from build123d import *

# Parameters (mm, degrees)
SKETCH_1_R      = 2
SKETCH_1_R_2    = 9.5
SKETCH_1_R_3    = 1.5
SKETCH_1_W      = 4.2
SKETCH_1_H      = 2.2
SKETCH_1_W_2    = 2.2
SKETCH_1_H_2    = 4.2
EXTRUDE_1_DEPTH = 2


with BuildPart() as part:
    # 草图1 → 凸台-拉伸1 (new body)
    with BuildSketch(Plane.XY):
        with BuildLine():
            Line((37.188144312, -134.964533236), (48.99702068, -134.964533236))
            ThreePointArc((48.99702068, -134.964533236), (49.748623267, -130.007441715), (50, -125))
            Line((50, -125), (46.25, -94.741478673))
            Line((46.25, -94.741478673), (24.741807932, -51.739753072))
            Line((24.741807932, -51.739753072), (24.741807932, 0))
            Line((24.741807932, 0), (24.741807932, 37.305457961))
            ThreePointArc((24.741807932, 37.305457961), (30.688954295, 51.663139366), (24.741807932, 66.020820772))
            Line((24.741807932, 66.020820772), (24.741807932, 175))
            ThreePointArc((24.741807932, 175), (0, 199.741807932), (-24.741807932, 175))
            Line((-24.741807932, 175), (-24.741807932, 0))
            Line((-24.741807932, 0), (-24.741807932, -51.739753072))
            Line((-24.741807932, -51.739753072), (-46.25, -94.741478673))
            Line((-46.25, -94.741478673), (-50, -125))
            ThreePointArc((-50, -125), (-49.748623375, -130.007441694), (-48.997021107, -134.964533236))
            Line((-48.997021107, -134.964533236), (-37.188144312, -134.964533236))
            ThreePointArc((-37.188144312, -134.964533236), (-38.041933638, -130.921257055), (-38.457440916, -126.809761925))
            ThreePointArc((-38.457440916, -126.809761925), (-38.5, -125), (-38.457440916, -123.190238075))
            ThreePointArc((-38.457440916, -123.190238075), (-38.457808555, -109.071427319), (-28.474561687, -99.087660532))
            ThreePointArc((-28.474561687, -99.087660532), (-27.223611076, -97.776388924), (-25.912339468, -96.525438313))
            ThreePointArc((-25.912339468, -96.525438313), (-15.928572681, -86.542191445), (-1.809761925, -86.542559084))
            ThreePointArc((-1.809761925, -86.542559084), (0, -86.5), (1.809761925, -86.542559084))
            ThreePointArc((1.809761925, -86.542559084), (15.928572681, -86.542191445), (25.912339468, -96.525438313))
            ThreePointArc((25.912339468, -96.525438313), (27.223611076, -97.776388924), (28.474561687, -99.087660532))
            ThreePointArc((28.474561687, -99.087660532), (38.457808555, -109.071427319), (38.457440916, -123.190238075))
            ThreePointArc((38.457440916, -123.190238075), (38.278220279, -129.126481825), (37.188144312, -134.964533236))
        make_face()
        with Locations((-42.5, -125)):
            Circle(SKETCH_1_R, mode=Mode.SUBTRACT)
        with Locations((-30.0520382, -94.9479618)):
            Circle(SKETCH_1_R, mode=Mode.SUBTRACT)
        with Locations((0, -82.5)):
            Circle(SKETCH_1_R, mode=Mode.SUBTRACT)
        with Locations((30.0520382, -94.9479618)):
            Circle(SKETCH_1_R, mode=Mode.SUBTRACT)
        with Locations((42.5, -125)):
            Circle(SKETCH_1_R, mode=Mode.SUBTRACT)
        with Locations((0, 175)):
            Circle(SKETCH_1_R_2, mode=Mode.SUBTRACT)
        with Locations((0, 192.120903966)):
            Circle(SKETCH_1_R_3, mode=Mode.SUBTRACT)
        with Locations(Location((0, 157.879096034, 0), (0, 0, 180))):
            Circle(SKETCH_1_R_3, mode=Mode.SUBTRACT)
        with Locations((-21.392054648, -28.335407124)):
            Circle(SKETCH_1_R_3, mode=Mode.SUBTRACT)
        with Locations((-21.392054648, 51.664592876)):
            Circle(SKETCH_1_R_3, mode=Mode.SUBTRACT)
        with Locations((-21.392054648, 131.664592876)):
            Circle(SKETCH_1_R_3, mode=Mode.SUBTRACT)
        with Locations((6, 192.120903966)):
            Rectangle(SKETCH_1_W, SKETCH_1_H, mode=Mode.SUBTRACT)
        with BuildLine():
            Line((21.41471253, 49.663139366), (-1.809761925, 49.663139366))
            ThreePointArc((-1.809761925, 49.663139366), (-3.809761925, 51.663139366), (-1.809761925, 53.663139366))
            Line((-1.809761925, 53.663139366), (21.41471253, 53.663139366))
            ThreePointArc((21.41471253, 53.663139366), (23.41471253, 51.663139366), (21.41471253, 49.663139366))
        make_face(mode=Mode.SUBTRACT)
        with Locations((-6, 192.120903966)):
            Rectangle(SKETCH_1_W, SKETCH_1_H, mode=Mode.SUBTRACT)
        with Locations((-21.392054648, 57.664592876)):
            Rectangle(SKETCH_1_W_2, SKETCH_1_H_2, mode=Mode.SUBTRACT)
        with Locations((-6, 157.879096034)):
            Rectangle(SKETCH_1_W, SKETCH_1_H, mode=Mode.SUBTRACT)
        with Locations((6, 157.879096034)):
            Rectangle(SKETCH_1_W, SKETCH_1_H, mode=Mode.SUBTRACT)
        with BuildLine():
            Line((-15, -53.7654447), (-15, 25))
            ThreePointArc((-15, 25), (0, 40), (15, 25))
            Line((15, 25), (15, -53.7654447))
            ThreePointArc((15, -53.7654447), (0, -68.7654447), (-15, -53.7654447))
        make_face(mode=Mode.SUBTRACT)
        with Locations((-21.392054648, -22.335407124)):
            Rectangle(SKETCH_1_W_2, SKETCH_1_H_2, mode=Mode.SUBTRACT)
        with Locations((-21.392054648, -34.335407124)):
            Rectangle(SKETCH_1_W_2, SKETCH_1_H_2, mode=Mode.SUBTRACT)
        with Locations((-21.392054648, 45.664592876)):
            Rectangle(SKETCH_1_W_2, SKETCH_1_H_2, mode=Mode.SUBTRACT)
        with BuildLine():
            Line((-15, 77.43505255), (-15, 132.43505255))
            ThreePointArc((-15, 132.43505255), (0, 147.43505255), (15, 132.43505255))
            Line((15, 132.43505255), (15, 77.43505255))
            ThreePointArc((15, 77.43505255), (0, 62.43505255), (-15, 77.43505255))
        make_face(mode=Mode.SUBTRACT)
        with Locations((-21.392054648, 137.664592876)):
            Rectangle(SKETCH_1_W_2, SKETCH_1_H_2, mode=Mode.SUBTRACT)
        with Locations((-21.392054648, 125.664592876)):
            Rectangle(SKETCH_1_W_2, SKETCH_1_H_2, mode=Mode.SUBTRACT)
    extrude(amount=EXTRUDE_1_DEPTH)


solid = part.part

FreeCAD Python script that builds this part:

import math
import FreeCAD as App
import Part
import Sketcher
from FreeCAD import Vector
Q = App.Units.Quantity


def add_polygon(sketch, points):
    """Adds a closed chain of lines whose ends are joined by coincident constraints."""
    first, n = sketch.GeometryCount, len(points)
    for a, b in zip(points, points[1:] + points[:1]):
        sketch.addGeometry(Part.LineSegment(App.Vector(*a, 0), App.Vector(*b, 0)), False)
    for i in range(n):
        sketch.addConstraint(Sketcher.Constraint("Coincident", first + i, 2, first + (i + 1) % n, 1))

doc = App.newDocument("Part")
body = doc.addObject("PartDesign::Body", "Body")

sketch1 = body.newObject("Sketcher::SketchObject", "Sketch")
sketch1.AttachmentSupport = (doc.getObject("XY_Plane"), [""])
sketch1.MapMode = "FlatFace"
sketch1.addGeometry(Part.LineSegment(Vector(37.188144, -134.964533, 0), Vector(48.997021, -134.964533, 0)), False)
sketch1.addGeometry(Part.ArcOfCircle(Part.Circle(Vector(0.000021, -125, 0), Vector(0, 0, 1), 49.999979), math.radians(-11.495487), math.radians(0)), False)
sketch1.addGeometry(Part.LineSegment(Vector(50, -125, 0), Vector(46.25, -94.741479, 0)), False)
sketch1.addGeometry(Part.LineSegment(Vector(46.25, -94.741479, 0), Vector(24.741808, -51.739753, 0)), False)
sketch1.addGeometry(Part.LineSegment(Vector(24.741808, -51.739753, 0), Vector(24.741808, 37.305458, 0)), False)
sketch1.addGeometry(Part.ArcOfCircle(Part.Circle(Vector(10.384127, 51.663139, 0), Vector(0, 0, 1), 20.304828), math.radians(-45), math.radians(45)), False)
sketch1.addGeometry(Part.LineSegment(Vector(24.741808, 66.020821, 0), Vector(24.741808, 175, 0)), False)
sketch1.addGeometry(Part.ArcOfCircle(Part.Circle(Vector(0, 175, 0), Vector(0, 0, 1), 24.741808), math.radians(0), math.radians(180)), False)
sketch1.addGeometry(Part.LineSegment(Vector(-24.741808, 175, 0), Vector(-24.741808, -51.739753, 0)), False)
sketch1.addGeometry(Part.LineSegment(Vector(-24.741808, -51.739753, 0), Vector(-46.25, -94.741479, 0)), False)
sketch1.addGeometry(Part.LineSegment(Vector(-46.25, -94.741479, 0), Vector(-50, -125, 0)), False)
sketch1.addGeometry(Part.ArcOfCircle(Part.Circle(Vector(0, -125, 0), Vector(0, 0, 1), 50), math.radians(180), math.radians(191.495482)), False)
sketch1.addGeometry(Part.LineSegment(Vector(-48.997021, -134.964533, 0), Vector(-37.188144, -134.964533, 0)), False)
sketch1.addGeometry(Part.ArcOfCircle(Part.Circle(Vector(0, -125, 0), Vector(0, 0, 1), 38.5), math.radians(-177.305716), math.radians(-165)), False)
sketch1.addGeometry(Part.ArcOfCircle(Part.Circle(Vector(0, -125, 0), Vector(0, 0, 1), 38.5), math.radians(177.305716), math.radians(182.694284)), False)
sketch1.addGeometry(Part.ArcOfCircle(Part.Circle(Vector(-21.414713, -116.130389, 0), Vector(0, 0, 1), 18.447115), math.radians(112.501492), math.radians(202.501492)), False)
sketch1.addGeometry(Part.ArcOfCircle(Part.Circle(Vector(-0.000001, -124.999999, 0), Vector(0, 0, 1), 38.499999), math.radians(132.302732), math.radians(137.697268)), False)
sketch1.addGeometry(Part.ArcOfCircle(Part.Circle(Vector(-8.869611, -103.585287, 0), Vector(0, 0, 1), 18.447115), math.radians(67.498508), math.radians(157.498508)), False)
sketch1.addGeometry(Part.ArcOfCircle(Part.Circle(Vector(0, -125, 0), Vector(0, 0, 1), 38.5), math.radians(87.305716), math.radians(92.694284)), False)
sketch1.addGeometry(Part.ArcOfCircle(Part.Circle(Vector(8.869611, -103.585287, 0), Vector(0, 0, 1), 18.447115), math.radians(22.501492), math.radians(112.501492)), False)
sketch1.addGeometry(Part.ArcOfCircle(Part.Circle(Vector(0.000001, -124.999999, 0), Vector(0, 0, 1), 38.499999), math.radians(42.302732), math.radians(47.697268)), False)
sketch1.addGeometry(Part.ArcOfCircle(Part.Circle(Vector(21.414713, -116.130389, 0), Vector(0, 0, 1), 18.447115), math.radians(-22.501492), math.radians(67.498508)), False)
sketch1.addGeometry(Part.ArcOfCircle(Part.Circle(Vector(0, -125, 0), Vector(0, 0, 1), 38.5), math.radians(-15), math.radians(2.694284)), False)
sketch1.addGeometry(Part.Circle(Vector(-42.5, -125, 0), Vector(0, 0, 1), 2), False)
sketch1.addGeometry(Part.Circle(Vector(-30.052038, -94.947962, 0), Vector(0, 0, 1), 2), False)
add_polygon(sketch1, [(-20.292055, -36.435407), (-22.492055, -36.435407), (-22.492055, -32.235407), (-20.292055, -32.235407)])
sketch1.addGeometry(Part.Circle(Vector(-21.392055, -28.335407, 0), Vector(0, 0, 1), 1.5), False)
add_polygon(sketch1, [(-20.292055, -24.435407), (-22.492055, -24.435407), (-22.492055, -20.235407), (-20.292055, -20.235407)])
sketch1.addGeometry(Part.Circle(Vector(0, -82.5, 0), Vector(0, 0, 1), 2), False)
sketch1.addGeometry(Part.Circle(Vector(30.052038, -94.947962, 0), Vector(0, 0, 1), 2), False)
sketch1.addGeometry(Part.Circle(Vector(42.5, -125, 0), Vector(0, 0, 1), 2), False)
sketch1.addGeometry(Part.ArcOfCircle(Part.Circle(Vector(0, -53.765445, 0), Vector(0, 0, 1), 15), math.radians(180), math.radians(360)), False)
sketch1.addGeometry(Part.LineSegment(Vector(-15, -53.765445, 0), Vector(-15, 25, 0)), False)
sketch1.addGeometry(Part.ArcOfCircle(Part.Circle(Vector(0, 25, 0), Vector(0, 0, 1), 15), math.radians(0), math.radians(180)), False)
sketch1.addGeometry(Part.LineSegment(Vector(15, 25, 0), Vector(15, -53.765445, 0)), False)
add_polygon(sketch1, [(-20.292055, 43.564593), (-22.492055, 43.564593), (-22.492055, 47.764593), (-20.292055, 47.764593)])
sketch1.addGeometry(Part.Circle(Vector(-21.392055, 51.664593, 0), Vector(0, 0, 1), 1.5), False)
add_polygon(sketch1, [(-20.292055, 55.564593), (-22.492055, 55.564593), (-22.492055, 59.764593), (-20.292055, 59.764593)])
add_polygon(sketch1, [(-20.292055, 123.564593), (-22.492055, 123.564593), (-22.492055, 127.764593), (-20.292055, 127.764593)])
sketch1.addGeometry(Part.Circle(Vector(-21.392055, 131.664593, 0), Vector(0, 0, 1), 1.5), False)
add_polygon(sketch1, [(-20.292055, 135.564593), (-22.492055, 135.564593), (-22.492055, 139.764593), (-20.292055, 139.764593)])
add_polygon(sketch1, [(-3.9, 156.779096), (-8.1, 156.779096), (-8.1, 158.979096), (-3.9, 158.979096)])
add_polygon(sketch1, [(-3.9, 191.020904), (-8.1, 191.020904), (-8.1, 193.220904), (-3.9, 193.220904)])
sketch1.addGeometry(Part.ArcOfCircle(Part.Circle(Vector(21.414713, 51.663139, 0), Vector(0, 0, 1), 2), math.radians(-90), math.radians(90)), False)
sketch1.addGeometry(Part.LineSegment(Vector(21.414713, 49.663139, 0), Vector(-1.809762, 49.663139, 0)), False)
sketch1.addGeometry(Part.ArcOfCircle(Part.Circle(Vector(-1.809762, 51.663139, 0), Vector(0, 0, 1), 2), math.radians(90), math.radians(270)), False)
sketch1.addGeometry(Part.LineSegment(Vector(-1.809762, 53.663139, 0), Vector(21.414713, 53.663139, 0)), False)
sketch1.addGeometry(Part.ArcOfCircle(Part.Circle(Vector(0, 77.435053, 0), Vector(0, 0, 1), 15), math.radians(180), math.radians(360)), False)
sketch1.addGeometry(Part.LineSegment(Vector(-15, 77.435053, 0), Vector(-15, 132.435053, 0)), False)
sketch1.addGeometry(Part.ArcOfCircle(Part.Circle(Vector(0, 132.435053, 0), Vector(0, 0, 1), 15), math.radians(0), math.radians(180)), False)
sketch1.addGeometry(Part.LineSegment(Vector(15, 132.435053, 0), Vector(15, 77.435053, 0)), False)
sketch1.addGeometry(Part.Circle(Vector(0, 157.879096, 0), Vector(0, 0, 1), 1.5), False)
add_polygon(sketch1, [(8.1, 156.779096), (3.9, 156.779096), (3.9, 158.979096), (8.1, 158.979096)])
sketch1.addGeometry(Part.Circle(Vector(0, 175, 0), Vector(0, 0, 1), 9.5), False)
sketch1.addGeometry(Part.Circle(Vector(0, 192.120904, 0), Vector(0, 0, 1), 1.5), False)
add_polygon(sketch1, [(8.1, 191.020904), (3.9, 191.020904), (3.9, 193.220904), (8.1, 193.220904)])
sketch1.addConstraint(Sketcher.Constraint("Coincident", 0, 2, 1, 1))
sketch1.addConstraint(Sketcher.Constraint("Coincident", 1, 2, 2, 1))
sketch1.addConstraint(Sketcher.Constraint("Coincident", 2, 2, 3, 1))
sketch1.addConstraint(Sketcher.Constraint("Coincident", 3, 2, 4, 1))
sketch1.addConstraint(Sketcher.Constraint("Coincident", 4, 2, 5, 1))
sketch1.addConstraint(Sketcher.Constraint("Coincident", 5, 2, 6, 1))
sketch1.addConstraint(Sketcher.Constraint("Coincident", 6, 2, 7, 1))
sketch1.addConstraint(Sketcher.Constraint("Coincident", 7, 2, 8, 1))
sketch1.addConstraint(Sketcher.Constraint("Coincident", 8, 2, 9, 1))
sketch1.addConstraint(Sketcher.Constraint("Coincident", 9, 2, 10, 1))
sketch1.addConstraint(Sketcher.Constraint("Coincident", 10, 2, 11, 1))
sketch1.addConstraint(Sketcher.Constraint("Coincident", 11, 2, 12, 1))
sketch1.addConstraint(Sketcher.Constraint("Coincident", 12, 2, 13, 2))
sketch1.addConstraint(Sketcher.Constraint("Coincident", 13, 1, 14, 2))
sketch1.addConstraint(Sketcher.Constraint("Coincident", 14, 1, 15, 2))
sketch1.addConstraint(Sketcher.Constraint("Coincident", 15, 1, 16, 2))
sketch1.addConstraint(Sketcher.Constraint("Coincident", 16, 1, 17, 2))
sketch1.addConstraint(Sketcher.Constraint("Coincident", 17, 1, 18, 2))
sketch1.addConstraint(Sketcher.Constraint("Coincident", 18, 1, 19, 2))
sketch1.addConstraint(Sketcher.Constraint("Coincident", 19, 1, 20, 2))
sketch1.addConstraint(Sketcher.Constraint("Coincident", 20, 1, 21, 2))
sketch1.addConstraint(Sketcher.Constraint("Coincident", 21, 1, 22, 2))
sketch1.addConstraint(Sketcher.Constraint("Coincident", 22, 1, 0, 1))
sketch1.addConstraint(Sketcher.Constraint("Coincident", 37, 1, 38, 1))
sketch1.addConstraint(Sketcher.Constraint("Coincident", 38, 2, 39, 2))
sketch1.addConstraint(Sketcher.Constraint("Coincident", 39, 1, 40, 1))
sketch1.addConstraint(Sketcher.Constraint("Coincident", 40, 2, 37, 2))
sketch1.addConstraint(Sketcher.Constraint("Coincident", 67, 1, 68, 1))
sketch1.addConstraint(Sketcher.Constraint("Coincident", 68, 2, 69, 2))
sketch1.addConstraint(Sketcher.Constraint("Coincident", 69, 1, 70, 1))
sketch1.addConstraint(Sketcher.Constraint("Coincident", 70, 2, 67, 2))
sketch1.addConstraint(Sketcher.Constraint("Coincident", 71, 1, 72, 1))
sketch1.addConstraint(Sketcher.Constraint("Coincident", 72, 2, 73, 2))
sketch1.addConstraint(Sketcher.Constraint("Coincident", 73, 1, 74, 1))
sketch1.addConstraint(Sketcher.Constraint("Coincident", 74, 2, 71, 2))
sketch1.addConstraint(Sketcher.Constraint("Horizontal", 0))
sketch1.addConstraint(Sketcher.Constraint("Vertical", 4))
sketch1.addConstraint(Sketcher.Constraint("Vertical", 6))
sketch1.addConstraint(Sketcher.Constraint("Vertical", 8))
sketch1.addConstraint(Sketcher.Constraint("Horizontal", 12))
sketch1.addConstraint(Sketcher.Constraint("Horizontal", 25))
sketch1.addConstraint(Sketcher.Constraint("Vertical", 26))
sketch1.addConstraint(Sketcher.Constraint("Horizontal", 27))
sketch1.addConstraint(Sketcher.Constraint("Vertical", 28))
sketch1.addConstraint(Sketcher.Constraint("Horizontal", 30))
sketch1.addConstraint(Sketcher.Constraint("Vertical", 31))
sketch1.addConstraint(Sketcher.Constraint("Horizontal", 32))
sketch1.addConstraint(Sketcher.Constraint("Vertical", 33))
sketch1.addConstraint(Sketcher.Constraint("Vertical", 38))
sketch1.addConstraint(Sketcher.Constraint("Vertical", 40))
sketch1.addConstraint(Sketcher.Constraint("Horizontal", 41))
sketch1.addConstraint(Sketcher.Constraint("Vertical", 42))
sketch1.addConstraint(Sketcher.Constraint("Horizontal", 43))
sketch1.addConstraint(Sketcher.Constraint("Vertical", 44))
sketch1.addConstraint(Sketcher.Constraint("Horizontal", 46))
sketch1.addConstraint(Sketcher.Constraint("Vertical", 47))
sketch1.addConstraint(Sketcher.Constraint("Horizontal", 48))
sketch1.addConstraint(Sketcher.Constraint("Vertical", 49))
sketch1.addConstraint(Sketcher.Constraint("Horizontal", 50))
sketch1.addConstraint(Sketcher.Constraint("Vertical", 51))
sketch1.addConstraint(Sketcher.Constraint("Horizontal", 52))
sketch1.addConstraint(Sketcher.Constraint("Vertical", 53))
sketch1.addConstraint(Sketcher.Constraint("Horizontal", 55))
sketch1.addConstraint(Sketcher.Constraint("Vertical", 56))
sketch1.addConstraint(Sketcher.Constraint("Horizontal", 57))
sketch1.addConstraint(Sketcher.Constraint("Vertical", 58))
sketch1.addConstraint(Sketcher.Constraint("Horizontal", 59))
sketch1.addConstraint(Sketcher.Constraint("Vertical", 60))
sketch1.addConstraint(Sketcher.Constraint("Horizontal", 61))
sketch1.addConstraint(Sketcher.Constraint("Vertical", 62))
sketch1.addConstraint(Sketcher.Constraint("Horizontal", 63))
sketch1.addConstraint(Sketcher.Constraint("Vertical", 64))
sketch1.addConstraint(Sketcher.Constraint("Horizontal", 65))
sketch1.addConstraint(Sketcher.Constraint("Vertical", 66))
sketch1.addConstraint(Sketcher.Constraint("Horizontal", 68))
sketch1.addConstraint(Sketcher.Constraint("Horizontal", 70))
sketch1.addConstraint(Sketcher.Constraint("Vertical", 72))
sketch1.addConstraint(Sketcher.Constraint("Vertical", 74))
sketch1.addConstraint(Sketcher.Constraint("Horizontal", 76))
sketch1.addConstraint(Sketcher.Constraint("Vertical", 77))
sketch1.addConstraint(Sketcher.Constraint("Horizontal", 78))
sketch1.addConstraint(Sketcher.Constraint("Vertical", 79))
sketch1.addConstraint(Sketcher.Constraint("Horizontal", 82))
sketch1.addConstraint(Sketcher.Constraint("Vertical", 83))
sketch1.addConstraint(Sketcher.Constraint("Horizontal", 84))
sketch1.addConstraint(Sketcher.Constraint("Vertical", 85))
sketch1.addConstraint(Sketcher.Constraint("Coincident", 13, 3, 11, 3))
sketch1.addConstraint(Sketcher.Constraint("Coincident", 14, 3, 11, 3))
sketch1.addConstraint(Sketcher.Constraint("Coincident", 16, 3, 11, 3))
sketch1.addConstraint(Sketcher.Constraint("Coincident", 18, 3, 11, 3))
sketch1.addConstraint(Sketcher.Constraint("Coincident", 20, 3, 11, 3))
sketch1.addConstraint(Sketcher.Constraint("Coincident", 22, 3, 11, 3))
sketch1.addConstraint(Sketcher.Constraint("Coincident", 80, 3, 7, 3))
sketch1.addConstraint(Sketcher.Constraint("PointOnObject", 7, 3, -2))
sketch1.addConstraint(Sketcher.Constraint("PointOnObject", 11, 3, -2))
sketch1.addConstraint(Sketcher.Constraint("PointOnObject", 34, 3, -2))
sketch1.addConstraint(Sketcher.Constraint("PointOnObject", 37, 3, -2))
sketch1.addConstraint(Sketcher.Constraint("PointOnObject", 71, 3, -2))
sketch1.addConstraint(Sketcher.Constraint("PointOnObject", 75, 3, -2))
sketch1.addConstraint(Sketcher.Constraint("PointOnObject", 81, 3, -2))
sketch1.addConstraint(Sketcher.Constraint("Diameter", 23, Q("4 mm")))
sketch1.addConstraint(Sketcher.Constraint("Diameter", 24, Q("4 mm")))
sketch1.addConstraint(Sketcher.Constraint("Diameter", 29, Q("3 mm")))
sketch1.addConstraint(Sketcher.Constraint("Diameter", 34, Q("4 mm")))
sketch1.addConstraint(Sketcher.Constraint("Diameter", 35, Q("4 mm")))
sketch1.addConstraint(Sketcher.Constraint("Diameter", 36, Q("4 mm")))
sketch1.addConstraint(Sketcher.Constraint("Diameter", 45, Q("3 mm")))
sketch1.addConstraint(Sketcher.Constraint("Diameter", 54, Q("3 mm")))
sketch1.addConstraint(Sketcher.Constraint("Diameter", 75, Q("3 mm")))
sketch1.addConstraint(Sketcher.Constraint("Diameter", 80, Q("19 mm")))
sketch1.addConstraint(Sketcher.Constraint("Diameter", 81, Q("3 mm")))
sketch1.addConstraint(Sketcher.Constraint("Radius", 11, Q("50 mm")))
sketch1.addConstraint(Sketcher.Constraint("Radius", 37, Q("15 mm")))
sketch1.addConstraint(Sketcher.Constraint("Radius", 67, Q("2 mm")))
sketch1.addConstraint(Sketcher.Constraint("Radius", 71, Q("15 mm")))
sketch1.addConstraint(Sketcher.Constraint("Radius", 13, Q("38.5 mm")))
sketch1.addConstraint(Sketcher.Constraint("Radius", 16, Q("38.499999 mm")))
sketch1.addConstraint(Sketcher.Constraint("Radius", 18, Q("38.5 mm")))
sketch1.addConstraint(Sketcher.Constraint("Radius", 20, Q("38.499999 mm")))
sketch1.addConstraint(Sketcher.Constraint("Radius", 22, Q("38.5 mm")))
sketch1.addConstraint(Sketcher.Constraint("DistanceY", 72, 1, 72, 2, Q("55 mm")))
sketch1.addConstraint(Sketcher.Constraint("DistanceY", 74, 2, 74, 1, Q("55 mm")))
sketch1.addConstraint(Sketcher.Constraint("DistanceX", 25, 2, 25, 1, Q("2.2 mm")))
sketch1.addConstraint(Sketcher.Constraint("DistanceX", 30, 2, 30, 1, Q("2.2 mm")))
sketch1.addConstraint(Sketcher.Constraint("DistanceX", 41, 2, 41, 1, Q("2.2 mm")))
sketch1.addConstraint(Sketcher.Constraint("DistanceX", 46, 2, 46, 1, Q("2.2 mm")))
sketch1.addConstraint(Sketcher.Constraint("DistanceX", 50, 2, 50, 1, Q("2.2 mm")))
sketch1.addConstraint(Sketcher.Constraint("DistanceX", 55, 2, 55, 1, Q("2.2 mm")))
sketch1.addConstraint(Sketcher.Constraint("DistanceX", 59, 2, 59, 1, Q("4.2 mm")))
sketch1.addConstraint(Sketcher.Constraint("DistanceX", 63, 2, 63, 1, Q("4.2 mm")))
sketch1.addConstraint(Sketcher.Constraint("DistanceX", 76, 2, 76, 1, Q("4.2 mm")))
sketch1.addConstraint(Sketcher.Constraint("DistanceX", 82, 2, 82, 1, Q("4.2 mm")))
sketch1.addConstraint(Sketcher.Constraint("DistanceY", 26, 1, 26, 2, Q("4.2 mm")))
sketch1.addConstraint(Sketcher.Constraint("DistanceY", 31, 1, 31, 2, Q("4.2 mm")))
sketch1.addConstraint(Sketcher.Constraint("DistanceY", 42, 1, 42, 2, Q("4.2 mm")))
sketch1.addConstraint(Sketcher.Constraint("DistanceY", 47, 1, 47, 2, Q("4.2 mm")))
sketch1.addConstraint(Sketcher.Constraint("DistanceY", 51, 1, 51, 2, Q("4.2 mm")))
sketch1.addConstraint(Sketcher.Constraint("DistanceY", 56, 1, 56, 2, Q("4.2 mm")))
sketch1.addConstraint(Sketcher.Constraint("DistanceY", 60, 1, 60, 2, Q("2.2 mm")))
sketch1.addConstraint(Sketcher.Constraint("DistanceY", 64, 1, 64, 2, Q("2.2 mm")))
sketch1.addConstraint(Sketcher.Constraint("DistanceY", 77, 1, 77, 2, Q("2.2 mm")))
sketch1.addConstraint(Sketcher.Constraint("DistanceY", 83, 1, 83, 2, Q("2.2 mm")))
sketch1.addConstraint(Sketcher.Constraint("DistanceY", 1, 3, -1, 1, Q("125 mm")))
sketch1.addConstraint(Sketcher.Constraint("DistanceY", -1, 1, 7, 3, Q("175 mm")))
sketch1.addConstraint(Sketcher.Constraint("DistanceY", 11, 3, -1, 1, Q("125 mm")))
sketch1.addConstraint(Sketcher.Constraint("DistanceY", 23, 3, -1, 1, Q("125 mm")))
sketch1.addConstraint(Sketcher.Constraint("DistanceY", 36, 3, -1, 1, Q("125 mm")))
sketch1.addConstraint(Sketcher.Constraint("DistanceY", -1, 1, 39, 3, Q("25 mm")))
sketch1.addConstraint(Sketcher.Constraint("DistanceX", -1, 1, 1, 2, Q("50 mm")))
sketch1.addConstraint(Sketcher.Constraint("DistanceY", 1, 2, -1, 1, Q("125 mm")))
sketch1.addConstraint(Sketcher.Constraint("DistanceY", -1, 1, 6, 2, Q("175 mm")))
sketch1.addConstraint(Sketcher.Constraint("DistanceY", -1, 1, 7, 2, Q("175 mm")))
sketch1.addConstraint(Sketcher.Constraint("DistanceY", 10, 2, -1, 1, Q("125 mm")))
sketch1.addConstraint(Sketcher.Constraint("DistanceY", -1, 1, 38, 2, Q("25 mm")))
sketch1.addConstraint(Sketcher.Constraint("DistanceY", -1, 1, 39, 1, Q("25 mm")))
sketch1.addConstraint(Sketcher.Constraint("DistanceX", 23, 3, -1, 1, Q("42.5 mm")))
sketch1.addConstraint(Sketcher.Constraint("DistanceY", 34, 3, -1, 1, Q("82.5 mm")))
sketch1.addConstraint(Sketcher.Constraint("DistanceX", -1, 1, 36, 3, Q("42.5 mm")))
sketch1.addConstraint(Sketcher.Constraint("DistanceX", 59, 2, -1, 1, Q("8.1 mm")))
sketch1.addConstraint(Sketcher.Constraint("DistanceX", 63, 2, -1, 1, Q("8.1 mm")))
sketch1.addConstraint(Sketcher.Constraint("DistanceX", -1, 1, 76, 2, Q("3.9 mm")))
sketch1.addConstraint(Sketcher.Constraint("DistanceX", -1, 1, 82, 2, Q("3.9 mm")))
sketch1.addConstraint(Sketcher.Constraint("DistanceX", -1, 1, 2, 2, Q("46.25 mm")))
sketch1.addConstraint(Sketcher.Constraint("DistanceX", 9, 2, -1, 1, Q("46.25 mm")))
sketch1.addConstraint(Sketcher.Constraint("Radius", 1, Q("49.999979 mm")))
sketch1.addConstraint(Sketcher.Constraint("Radius", 5, Q("20.304828 mm")))
sketch1.addConstraint(Sketcher.Constraint("Radius", 7, Q("24.741808 mm")))
sketch1.addConstraint(Sketcher.Constraint("Radius", 15, Q("18.447115 mm")))
sketch1.addConstraint(Sketcher.Constraint("Radius", 17, Q("18.447115 mm")))
sketch1.addConstraint(Sketcher.Constraint("Radius", 19, Q("18.447115 mm")))
sketch1.addConstraint(Sketcher.Constraint("Radius", 21, Q("18.447115 mm")))
sketch1.addConstraint(Sketcher.Constraint("DistanceY", 4, 1, 4, 2, Q("89.045211 mm")))
sketch1.addConstraint(Sketcher.Constraint("DistanceY", 6, 1, 6, 2, Q("108.979179 mm")))
sketch1.addConstraint(Sketcher.Constraint("Distance", 2, Q("30.490008 mm")))
sketch1.addConstraint(Sketcher.Constraint("Distance", 3, Q("48.080669 mm")))
sketch1.addConstraint(Sketcher.Constraint("Distance", 9, Q("48.080669 mm")))
sketch1.addConstraint(Sketcher.Constraint("Distance", 10, Q("30.490008 mm")))
sketch1.addConstraint(Sketcher.Constraint("DistanceX", 0, 1, 0, 2, Q("11.808876 mm")))
sketch1.addConstraint(Sketcher.Constraint("DistanceX", 12, 1, 12, 2, Q("11.808877 mm")))
sketch1.addConstraint(Sketcher.Constraint("DistanceX", 68, 2, 68, 1, Q("23.224474 mm")))
sketch1.addConstraint(Sketcher.Constraint("DistanceX", 70, 1, 70, 2, Q("23.224474 mm")))
sketch1.addConstraint(Sketcher.Constraint("DistanceY", 38, 1, 38, 2, Q("78.765445 mm")))
sketch1.addConstraint(Sketcher.Constraint("DistanceY", 40, 2, 40, 1, Q("78.765445 mm")))
sketch1.addConstraint(Sketcher.Constraint("DistanceY", -1, 1, 5, 3, Q("51.663139 mm")))
sketch1.addConstraint(Sketcher.Constraint("DistanceY", 15, 3, -1, 1, Q("116.130389 mm")))
sketch1.addConstraint(Sketcher.Constraint("DistanceX", 17, 3, -1, 1, Q("8.869611 mm")))
sketch1.addConstraint(Sketcher.Constraint("DistanceX", -1, 1, 19, 3, Q("8.869611 mm")))
sketch1.addConstraint(Sketcher.Constraint("DistanceY", 21, 3, -1, 1, Q("116.130389 mm")))
sketch1.addConstraint(Sketcher.Constraint("DistanceX", 24, 3, -1, 1, Q("30.052038 mm")))
sketch1.addConstraint(Sketcher.Constraint("DistanceY", 24, 3, -1, 1, Q("94.947962 mm")))
sketch1.addConstraint(Sketcher.Constraint("DistanceX", -1, 1, 35, 3, Q("30.052038 mm")))
sketch1.addConstraint(Sketcher.Constraint("DistanceY", 35, 3, -1, 1, Q("94.947962 mm")))
sketch1.addConstraint(Sketcher.Constraint("DistanceY", -1, 1, 67, 3, Q("51.663139 mm")))
sketch1.addConstraint(Sketcher.Constraint("DistanceX", 69, 3, -1, 1, Q("1.809762 mm")))
sketch1.addConstraint(Sketcher.Constraint("DistanceX", 13, 1, -1, 1, Q("38.457441 mm")))
sketch1.addConstraint(Sketcher.Constraint("DistanceX", 14, 1, -1, 1, Q("38.457441 mm")))
sketch1.addConstraint(Sketcher.Constraint("DistanceX", 16, 1, -1, 1, Q("25.912339 mm")))
sketch1.addConstraint(Sketcher.Constraint("DistanceX", -1, 1, 18, 1, Q("1.809762 mm")))
sketch1.addConstraint(Sketcher.Constraint("DistanceX", -1, 1, 20, 1, Q("28.474562 mm")))
sketch1.addConstraint(Sketcher.Constraint("DistanceX", 68, 2, -1, 1, Q("1.809762 mm")))
sketch1.addConstraint(Sketcher.Constraint("DistanceX", 69, 1, -1, 1, Q("1.809762 mm")))
sketch1.addConstraint(Sketcher.Constraint("DistanceX", 29, 3, -1, 1, Q("21.392055 mm")))
sketch1.addConstraint(Sketcher.Constraint("DistanceY", 29, 3, -1, 1, Q("28.335407 mm")))
sketch1.addConstraint(Sketcher.Constraint("DistanceY", 37, 3, -1, 1, Q("53.765445 mm")))
sketch1.addConstraint(Sketcher.Constraint("DistanceX", 45, 3, -1, 1, Q("21.392055 mm")))
sketch1.addConstraint(Sketcher.Constraint("DistanceY", -1, 1, 45, 3, Q("51.664593 mm")))
sketch1.addConstraint(Sketcher.Constraint("DistanceX", 54, 3, -1, 1, Q("21.392055 mm")))
sketch1.addConstraint(Sketcher.Constraint("DistanceY", -1, 1, 54, 3, Q("131.664593 mm")))
sketch1.addConstraint(Sketcher.Constraint("DistanceX", -1, 1, 67, 3, Q("21.414713 mm")))
sketch1.addConstraint(Sketcher.Constraint("DistanceY", -1, 1, 71, 3, Q("77.435053 mm")))
sketch1.addConstraint(Sketcher.Constraint("DistanceY", -1, 1, 73, 3, Q("132.435053 mm")))
sketch1.addConstraint(Sketcher.Constraint("DistanceY", -1, 1, 75, 3, Q("157.879096 mm")))
sketch1.addConstraint(Sketcher.Constraint("DistanceY", -1, 1, 81, 3, Q("192.120904 mm")))
sketch1.addConstraint(Sketcher.Constraint("DistanceX", 25, 2, -1, 1, Q("22.492055 mm")))
sketch1.addConstraint(Sketcher.Constraint("DistanceY", 25, 2, -1, 1, Q("36.435407 mm")))
sketch1.addConstraint(Sketcher.Constraint("DistanceX", 30, 2, -1, 1, Q("22.492055 mm")))
sketch1.addConstraint(Sketcher.Constraint("DistanceY", 30, 2, -1, 1, Q("24.435407 mm")))
sketch1.addConstraint(Sketcher.Constraint("DistanceX", 41, 2, -1, 1, Q("22.492055 mm")))
sketch1.addConstraint(Sketcher.Constraint("DistanceY", -1, 1, 41, 2, Q("43.564593 mm")))
sketch1.addConstraint(Sketcher.Constraint("DistanceX", 46, 2, -1, 1, Q("22.492055 mm")))
sketch1.addConstraint(Sketcher.Constraint("DistanceY", -1, 1, 46, 2, Q("55.564593 mm")))
sketch1.addConstraint(Sketcher.Constraint("DistanceX", 50, 2, -1, 1, Q("22.492055 mm")))
sketch1.addConstraint(Sketcher.Constraint("DistanceY", -1, 1, 50, 2, Q("123.564593 mm")))
sketch1.addConstraint(Sketcher.Constraint("DistanceX", 55, 2, -1, 1, Q("22.492055 mm")))
sketch1.addConstraint(Sketcher.Constraint("DistanceY", -1, 1, 55, 2, Q("135.564593 mm")))
sketch1.addConstraint(Sketcher.Constraint("DistanceY", -1, 1, 59, 2, Q("156.779096 mm")))
sketch1.addConstraint(Sketcher.Constraint("DistanceY", -1, 1, 63, 2, Q("191.020904 mm")))
sketch1.addConstraint(Sketcher.Constraint("DistanceY", -1, 1, 71, 1, Q("77.435053 mm")))
sketch1.addConstraint(Sketcher.Constraint("DistanceY", -1, 1, 73, 1, Q("132.435053 mm")))
sketch1.addConstraint(Sketcher.Constraint("DistanceY", -1, 1, 76, 2, Q("156.779096 mm")))
sketch1.addConstraint(Sketcher.Constraint("DistanceY", -1, 1, 82, 2, Q("191.020904 mm")))
pad1 = body.newObject("PartDesign::Pad", "Pad")
pad1.Profile = sketch1
pad1.Length = 2

doc.recompute()
